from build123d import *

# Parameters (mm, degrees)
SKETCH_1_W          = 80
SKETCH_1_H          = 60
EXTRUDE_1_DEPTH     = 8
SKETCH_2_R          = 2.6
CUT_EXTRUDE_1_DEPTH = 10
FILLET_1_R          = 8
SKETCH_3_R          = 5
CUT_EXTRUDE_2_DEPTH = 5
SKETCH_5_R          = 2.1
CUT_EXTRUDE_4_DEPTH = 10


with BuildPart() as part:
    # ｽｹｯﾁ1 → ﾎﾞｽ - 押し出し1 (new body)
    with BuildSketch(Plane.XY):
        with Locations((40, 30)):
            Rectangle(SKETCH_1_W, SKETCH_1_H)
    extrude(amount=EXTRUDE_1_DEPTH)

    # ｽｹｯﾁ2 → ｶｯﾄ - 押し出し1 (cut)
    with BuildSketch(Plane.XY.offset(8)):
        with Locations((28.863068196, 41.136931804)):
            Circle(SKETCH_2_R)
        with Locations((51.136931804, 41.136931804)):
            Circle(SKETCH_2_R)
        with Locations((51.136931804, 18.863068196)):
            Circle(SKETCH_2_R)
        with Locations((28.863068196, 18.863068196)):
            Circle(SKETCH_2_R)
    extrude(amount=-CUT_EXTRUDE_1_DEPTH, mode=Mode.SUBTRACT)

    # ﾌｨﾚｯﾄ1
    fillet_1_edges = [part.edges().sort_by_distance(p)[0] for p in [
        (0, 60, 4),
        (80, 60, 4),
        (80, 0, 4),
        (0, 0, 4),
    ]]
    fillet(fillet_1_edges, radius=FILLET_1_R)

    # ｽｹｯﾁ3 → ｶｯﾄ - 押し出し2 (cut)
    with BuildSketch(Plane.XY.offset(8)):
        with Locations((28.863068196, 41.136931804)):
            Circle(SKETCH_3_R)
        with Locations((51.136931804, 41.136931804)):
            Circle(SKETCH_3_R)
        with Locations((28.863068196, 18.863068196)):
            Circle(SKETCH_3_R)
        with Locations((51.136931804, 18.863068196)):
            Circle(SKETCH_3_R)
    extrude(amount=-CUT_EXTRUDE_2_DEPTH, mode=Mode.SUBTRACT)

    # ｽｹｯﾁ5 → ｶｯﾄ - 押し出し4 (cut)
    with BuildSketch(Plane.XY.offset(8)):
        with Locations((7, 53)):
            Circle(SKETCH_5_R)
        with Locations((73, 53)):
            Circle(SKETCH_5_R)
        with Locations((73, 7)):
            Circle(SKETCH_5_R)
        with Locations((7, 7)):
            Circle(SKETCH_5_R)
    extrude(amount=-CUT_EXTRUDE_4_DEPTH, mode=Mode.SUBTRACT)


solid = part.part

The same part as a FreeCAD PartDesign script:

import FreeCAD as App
import Part
import Sketcher

V = App.Vector


def edges_at(feature, points):
    """Names of the edges that pass closest to the given points."""
    edges = feature.Shape.Edges
    near = lambda p: min(range(len(edges)), key=lambda i: edges[i].distToShape(Part.Vertex(*p))[0])
    return sorted({f"Edge{near(p) + 1}" for p in points})

doc = App.newDocument("Part")
body = doc.addObject("PartDesign::Body", "Body")

# Sketch on XY plane
sketch1 = doc.addObject("Sketcher::SketchObject", "Sketch")
body.addObject(sketch1)
sketch1.AttachmentSupport = (doc.XY_Plane, [""])
sketch1.MapMode = "FlatFace"
sketch1.addGeometry([
    Part.LineSegment(V(0, 60, 0), V(0, 0, 0)),
    Part.LineSegment(V(0, 0, 0), V(80, 0, 0)),
    Part.LineSegment(V(80, 0, 0), V(80, 60, 0)),
    Part.LineSegment(V(80, 60, 0), V(0, 60, 0)),
], False)
sketch1.addConstraint([
    Sketcher.Constraint("Coincident", 0, 2, 1, 1),
    Sketcher.Constraint("Coincident", 1, 2, 2, 1),
    Sketcher.Constraint("Coincident", 2, 2, 3, 1),
    Sketcher.Constraint("Coincident", 3, 2, 0, 1),
    Sketcher.Constraint("Vertical", 0),
    Sketcher.Constraint("Horizontal", 1),
    Sketcher.Constraint("Vertical", 2),
    Sketcher.Constraint("Horizontal", 3),
    Sketcher.Constraint("Coincident", 0, 2, -1, 1),
    Sketcher.Constraint("DistanceX", 1, 1, 1, 2, 80.0),
    Sketcher.Constraint("DistanceY", 0, 2, 0, 1, 60.0),
])
pad1 = doc.addObject("PartDesign::Pad", "Pad")
body.addObject(pad1)
pad1.Profile = sketch1
pad1.Length = 8

# Sketch on XY plane
sketch2 = doc.addObject("Sketcher::SketchObject", "Sketch001")
body.addObject(sketch2)
sketch2.AttachmentSupport = (doc.XY_Plane, [""])
sketch2.MapMode = "FlatFace"
sketch2.AttachmentOffset = App.Placement(V(0, 0, 8), App.Rotation())
sketch2.addGeometry([
    Part.Circle(V(28.863068, 41.136932, 0), V(0, 0, 1), 2.6),
    Part.Circle(V(51.136932, 41.136932, 0), V(0, 0, 1), 2.6),
    Part.Circle(V(51.136932, 18.863068, 0), V(0, 0, 1), 2.6),
    Part.Circle(V(28.863068, 18.863068, 0), V(0, 0, 1), 2.6),
], False)
sketch2.addConstraint([
    Sketcher.Constraint("Equal", 0, 1),
    Sketcher.Constraint("Equal", 1, 2),
    Sketcher.Constraint("Equal", 2, 3),
    Sketcher.Constraint("Horizontal", 0, 3, 1, 3),
    Sketcher.Constraint("Horizontal", 2, 3, 3, 3),
    Sketcher.Constraint("Vertical", 1, 3, 2, 3),
    Sketcher.Constraint("Vertical", 0, 3, 3, 3),
    Sketcher.Constraint("Diameter", 0, 5.2),
    Sketcher.Constraint("DistanceX", -1, 1, 0, 3, 28.863068),
    Sketcher.Constraint("DistanceY", -1, 1, 0, 3, 41.136932),
    Sketcher.Constraint("DistanceX", -1, 1, 1, 3, 51.136932),
    Sketcher.Constraint("DistanceY", -1, 1, 2, 3, 18.863068),
])
pocket1 = doc.addObject("PartDesign::Pocket", "Pocket")
body.addObject(pocket1)
pocket1.Profile = sketch2
pocket1.Length = 10
doc.recompute()

fillet = doc.addObject("PartDesign::Fillet", "Fillet")
body.addObject(fillet)
fillet.Base = (pocket1, edges_at(pocket1, [
    (0, 60, 4),
    (80, 60, 4),
    (80, 0, 4),
    (0, 0, 4),
]))
fillet.Radius = 8

# Sketch on XY plane
sketch3 = doc.addObject("Sketcher::SketchObject", "Sketch002")
body.addObject(sketch3)
sketch3.AttachmentSupport = (doc.XY_Plane, [""])
sketch3.MapMode = "FlatFace"
sketch3.AttachmentOffset = App.Placement(V(0, 0, 8), App.Rotation())
sketch3.addGeometry([
    Part.Circle(V(28.863068, 41.136932, 0), V(0, 0, 1), 5),
    Part.Circle(V(51.136932, 41.136932, 0), V(0, 0, 1), 5),
    Part.Circle(V(28.863068, 18.863068, 0), V(0, 0, 1), 5),
    Part.Circle(V(51.136932, 18.863068, 0), V(0, 0, 1), 5),
], False)
sketch3.addConstraint([
    Sketcher.Constraint("Equal", 0, 1),
    Sketcher.Constraint("Equal", 1, 2),
    Sketcher.Constraint("Equal", 2, 3),
    Sketcher.Constraint("Horizontal", 0, 3, 1, 3),
    Sketcher.Constraint("Horizontal", 2, 3, 3, 3),
    Sketcher.Constraint("Vertical", 0, 3, 2, 3),
    Sketcher.Constraint("Vertical", 1, 3, 3, 3),
    Sketcher.Constraint("Diameter", 0, 10.0),
    Sketcher.Constraint("DistanceX", -1, 1, 0, 3, 28.863068),
    Sketcher.Constraint("DistanceY", -1, 1, 0, 3, 41.136932),
    Sketcher.Constraint("DistanceX", -1, 1, 1, 3, 51.136932),
    Sketcher.Constraint("DistanceY", -1, 1, 2, 3, 18.863068),
])
pocket2 = doc.addObject("PartDesign::Pocket", "Pocket001")
body.addObject(pocket2)
pocket2.Profile = sketch3
pocket2.Length = 5

# Sketch on XY plane
sketch4 = doc.addObject("Sketcher::SketchObject", "Sketch003")
body.addObject(sketch4)
sketch4.AttachmentSupport = (doc.XY_Plane, [""])
sketch4.MapMode = "FlatFace"
sketch4.AttachmentOffset = App.Placement(V(0, 0, 8), App.Rotation())
sketch4.addGeometry([
    Part.Circle(V(7, 53, 0), V(0, 0, 1), 2.1),
    Part.Circle(V(73, 53, 0), V(0, 0, 1), 2.1),
    Part.Circle(V(73, 7, 0), V(0, 0, 1), 2.1),
    Part.Circle(V(7, 7, 0), V(0, 0, 1), 2.1),
], False)
sketch4.addConstraint([
    Sketcher.Constraint("Equal", 0, 1),
    Sketcher.Constraint("Equal", 1, 2),
    Sketcher.Constraint("Equal", 2, 3),
    Sketcher.Constraint("Horizontal", 0, 3, 1, 3),
    Sketcher.Constraint("Horizontal", 2, 3, 3, 3),
    Sketcher.Constraint("Vertical", 1, 3, 2, 3),
    Sketcher.Constraint("Vertical", 0, 3, 3, 3),
    Sketcher.Constraint("Diameter", 0, 4.2),
    Sketcher.Constraint("DistanceX", -1, 1, 0, 3, 7.0),
    Sketcher.Constraint("DistanceY", -1, 1, 0, 3, 53.0),
    Sketcher.Constraint("DistanceX", -1, 1, 1, 3, 73.0),
    Sketcher.Constraint("DistanceY", -1, 1, 2, 3, 7.0),
])
pocket3 = doc.addObject("PartDesign::Pocket", "Pocket002")
body.addObject(pocket3)
pocket3.Profile = sketch4
pocket3.Length = 10

doc.recompute()
